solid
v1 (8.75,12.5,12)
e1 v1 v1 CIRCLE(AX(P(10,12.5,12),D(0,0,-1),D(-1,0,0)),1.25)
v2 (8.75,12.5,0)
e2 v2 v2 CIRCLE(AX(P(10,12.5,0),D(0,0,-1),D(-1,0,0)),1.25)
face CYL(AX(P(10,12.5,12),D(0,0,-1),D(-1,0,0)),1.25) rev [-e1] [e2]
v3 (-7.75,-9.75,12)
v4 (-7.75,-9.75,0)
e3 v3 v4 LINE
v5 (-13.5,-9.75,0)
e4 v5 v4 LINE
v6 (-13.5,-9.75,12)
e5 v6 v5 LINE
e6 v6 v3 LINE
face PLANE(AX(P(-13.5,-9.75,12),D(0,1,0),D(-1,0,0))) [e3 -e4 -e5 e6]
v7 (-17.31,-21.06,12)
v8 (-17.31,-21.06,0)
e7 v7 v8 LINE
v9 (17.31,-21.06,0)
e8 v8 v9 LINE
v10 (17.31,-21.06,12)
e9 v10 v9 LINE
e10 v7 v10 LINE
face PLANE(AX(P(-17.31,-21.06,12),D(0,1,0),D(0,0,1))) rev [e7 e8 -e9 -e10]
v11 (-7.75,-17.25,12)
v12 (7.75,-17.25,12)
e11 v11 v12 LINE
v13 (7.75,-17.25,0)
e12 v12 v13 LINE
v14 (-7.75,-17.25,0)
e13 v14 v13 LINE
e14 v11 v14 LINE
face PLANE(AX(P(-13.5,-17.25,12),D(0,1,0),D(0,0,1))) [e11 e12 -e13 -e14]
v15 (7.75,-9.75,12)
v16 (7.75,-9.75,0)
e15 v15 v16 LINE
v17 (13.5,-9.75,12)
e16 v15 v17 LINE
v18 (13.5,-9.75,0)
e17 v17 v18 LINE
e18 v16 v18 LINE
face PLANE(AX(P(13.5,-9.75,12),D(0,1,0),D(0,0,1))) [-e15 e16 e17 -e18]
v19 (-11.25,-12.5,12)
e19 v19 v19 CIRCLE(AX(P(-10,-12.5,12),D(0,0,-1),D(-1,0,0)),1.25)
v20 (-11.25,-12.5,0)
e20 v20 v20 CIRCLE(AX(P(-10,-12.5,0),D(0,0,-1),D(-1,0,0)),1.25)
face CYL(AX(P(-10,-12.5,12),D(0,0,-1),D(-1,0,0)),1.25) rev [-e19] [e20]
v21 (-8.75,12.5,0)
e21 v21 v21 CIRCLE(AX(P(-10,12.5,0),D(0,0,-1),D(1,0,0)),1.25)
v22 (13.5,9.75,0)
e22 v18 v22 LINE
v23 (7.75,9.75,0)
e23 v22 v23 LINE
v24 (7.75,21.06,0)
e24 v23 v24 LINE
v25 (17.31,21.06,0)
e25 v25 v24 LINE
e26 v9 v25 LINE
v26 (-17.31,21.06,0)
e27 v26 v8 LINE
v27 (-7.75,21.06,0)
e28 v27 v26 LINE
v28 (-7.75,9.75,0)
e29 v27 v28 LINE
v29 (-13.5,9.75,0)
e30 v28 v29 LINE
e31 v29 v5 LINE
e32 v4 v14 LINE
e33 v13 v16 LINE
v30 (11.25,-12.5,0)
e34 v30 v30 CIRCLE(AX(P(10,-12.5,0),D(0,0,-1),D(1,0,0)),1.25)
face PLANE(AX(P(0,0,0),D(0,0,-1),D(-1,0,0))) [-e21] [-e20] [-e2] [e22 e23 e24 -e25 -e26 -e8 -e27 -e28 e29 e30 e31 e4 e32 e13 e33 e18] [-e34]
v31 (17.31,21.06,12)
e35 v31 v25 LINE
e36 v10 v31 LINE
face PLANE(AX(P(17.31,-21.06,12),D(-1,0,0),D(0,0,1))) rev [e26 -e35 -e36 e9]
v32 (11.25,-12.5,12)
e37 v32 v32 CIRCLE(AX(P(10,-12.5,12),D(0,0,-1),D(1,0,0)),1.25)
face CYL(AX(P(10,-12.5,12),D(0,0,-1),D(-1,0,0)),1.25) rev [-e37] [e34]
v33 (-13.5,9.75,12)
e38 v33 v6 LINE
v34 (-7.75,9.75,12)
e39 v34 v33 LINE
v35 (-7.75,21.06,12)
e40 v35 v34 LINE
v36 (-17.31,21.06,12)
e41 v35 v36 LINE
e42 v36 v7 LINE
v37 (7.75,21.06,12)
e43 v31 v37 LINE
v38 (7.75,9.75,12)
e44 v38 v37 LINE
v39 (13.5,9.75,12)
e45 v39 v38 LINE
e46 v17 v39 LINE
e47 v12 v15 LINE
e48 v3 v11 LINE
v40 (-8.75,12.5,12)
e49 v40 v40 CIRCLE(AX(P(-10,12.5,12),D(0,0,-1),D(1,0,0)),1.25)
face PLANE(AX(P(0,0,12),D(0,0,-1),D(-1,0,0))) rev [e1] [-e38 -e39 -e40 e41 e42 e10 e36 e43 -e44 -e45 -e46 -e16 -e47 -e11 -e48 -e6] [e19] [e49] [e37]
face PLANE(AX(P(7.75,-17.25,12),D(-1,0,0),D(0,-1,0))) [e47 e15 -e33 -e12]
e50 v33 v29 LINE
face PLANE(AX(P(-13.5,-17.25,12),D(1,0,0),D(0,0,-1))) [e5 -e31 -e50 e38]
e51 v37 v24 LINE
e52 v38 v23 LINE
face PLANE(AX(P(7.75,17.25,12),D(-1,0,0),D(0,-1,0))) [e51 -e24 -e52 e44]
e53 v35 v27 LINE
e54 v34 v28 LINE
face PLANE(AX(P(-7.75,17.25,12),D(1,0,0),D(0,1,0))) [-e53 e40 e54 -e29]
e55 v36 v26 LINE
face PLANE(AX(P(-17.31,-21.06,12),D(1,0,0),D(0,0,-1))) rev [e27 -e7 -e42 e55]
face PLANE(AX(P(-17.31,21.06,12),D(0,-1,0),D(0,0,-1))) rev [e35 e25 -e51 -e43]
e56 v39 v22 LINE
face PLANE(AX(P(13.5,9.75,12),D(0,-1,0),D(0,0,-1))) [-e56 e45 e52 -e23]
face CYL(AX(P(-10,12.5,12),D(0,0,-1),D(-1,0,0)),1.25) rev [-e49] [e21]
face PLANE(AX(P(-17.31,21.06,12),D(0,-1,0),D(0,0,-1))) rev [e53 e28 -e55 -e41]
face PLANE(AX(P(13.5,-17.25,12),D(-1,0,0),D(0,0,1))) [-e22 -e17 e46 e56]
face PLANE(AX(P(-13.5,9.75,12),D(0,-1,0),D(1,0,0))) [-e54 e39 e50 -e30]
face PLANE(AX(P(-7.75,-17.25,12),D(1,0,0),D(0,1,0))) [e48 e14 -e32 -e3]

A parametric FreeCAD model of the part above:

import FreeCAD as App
import Part
import Sketcher
from FreeCAD import Vector


def add_polygon(sketch, points):
    """Adds a closed chain of lines whose ends are joined by coincident constraints."""
    first, n = sketch.GeometryCount, len(points)
    for a, b in zip(points, points[1:] + points[:1]):
        sketch.addGeometry(Part.LineSegment(App.Vector(*a, 0), App.Vector(*b, 0)), False)
    for i in range(n):
        sketch.addConstraint(Sketcher.Constraint("Coincident", first + i, 2, first + (i + 1) % n, 1))

doc = App.newDocument("Part")
params = doc.addObject("Spreadsheet::Sheet", "Params")
for row, (alias, value) in enumerate([
    ("sketch1_width", "27 mm"),
    ("sketch1_height", "34.5 mm"),
    ("sketch1_width2", "34.62 mm"),
    ("sketch1_height2", "42.12 mm"),
    ("pad1_length", "12 mm"),
    ("sketch2_diameter", "2.5 mm"),
    ("sketch2_height", "7.5 mm"),
    ("sketch2_width", "5.75 mm"),
    ("pad2_length", "12 mm"),
    ("sketch3_width", "15.5 mm"),
    ("sketch3_height", "3.81 mm"),
], start=1):
    params.set(f"A{row}", alias)
    params.set(f"B{row}", "=" + value)
    params.setAlias(f"B{row}", alias)

body = doc.addObject("PartDesign::Body", "Body")

# Sketch on XY plane
sketch1 = body.newObject("Sketcher::SketchObject", "Sketch")
sketch1.AttachmentSupport = (doc.getObject("XY_Plane"), [""])
sketch1.MapMode = "FlatFace"
add_polygon(sketch1, [(-17, 21), (-17, -21), (17, -21), (17, 21)])  # lines 0-3
add_polygon(sketch1, [(14, -17), (-14, -17), (-14, 17), (14, 17)])  # lines 4-7
sketch1.addConstraint(Sketcher.Constraint("Vertical", 0))
sketch1.addConstraint(Sketcher.Constraint("Horizontal", 1))
sketch1.addConstraint(Sketcher.Constraint("Vertical", 2))
sketch1.addConstraint(Sketcher.Constraint("Horizontal", 3))
sketch1.addConstraint(Sketcher.Constraint("Horizontal", 4))
sketch1.addConstraint(Sketcher.Constraint("Vertical", 5))
sketch1.addConstraint(Sketcher.Constraint("Horizontal", 6))
sketch1.addConstraint(Sketcher.Constraint("Vertical", 7))
sketch1.addConstraint(Sketcher.Constraint("Symmetric", 0, 2, 2, 2, -1, 1))
sketch1.addConstraint(Sketcher.Constraint("Symmetric", 4, 2, 6, 2, -1, 1))
sketch1.addConstraint(Sketcher.Constraint("DistanceX", 4, 2, 4, 1, 27.0))
sketch1.addConstraint(Sketcher.Constraint("DistanceY", 5, 1, 5, 2, 34.5))
sketch1.addConstraint(Sketcher.Constraint("DistanceX", 1, 1, 1, 2, 34.62))
sketch1.addConstraint(Sketcher.Constraint("DistanceY", 0, 2, 0, 1, 42.12))
sketch1.setExpression("Constraints[18]", "Params.sketch1_width")
sketch1.setExpression("Constraints[19]", "Params.sketch1_height")
sketch1.setExpression("Constraints[20]", "Params.sketch1_width2")
sketch1.setExpression("Constraints[21]", "Params.sketch1_height2")
pad1 = body.newObject("PartDesign::Pad", "Pad")
pad1.Profile = sketch1
pad1.setExpression("Length", "Params.pad1_length")

# Sketch on XY plane
sketch2 = body.newObject("Sketcher::SketchObject", "Sketch001")
sketch2.AttachmentSupport = (doc.getObject("XY_Plane"), [""])
sketch2.MapMode = "FlatFace"
add_polygon(sketch2, [(13.5, 17.2), (13.5, 9.8), (7.8, 9.8), (7.8, 17.2)])  # lines 0-3
sketch2.addGeometry(Part.Circle(Vector(10, 12.5, 0), Vector(0, 0, 1), 1.2), False)  # 4
add_polygon(sketch2, [(-7.8, 17.2), (-7.8, 9.8), (-13.5, 9.8), (-13.5, 17.2)])  # lines 5-8
sketch2.addGeometry(Part.Circle(Vector(-10, 12.5, 0), Vector(0, 0, 1), 1.2), False)  # 9
add_polygon(sketch2, [(-7.8, -9.8), (-7.8, -17.2), (-13.5, -17.2), (-13.5, -9.8)])  # lines 10-13
sketch2.addGeometry(Part.Circle(Vector(-10, -12.5, 0), Vector(0, 0, 1), 1.2), False)  # 14
add_polygon(sketch2, [(13.5, -9.8), (13.5, -17.2), (7.8, -17.2), (7.8, -9.8)])  # lines 15-18
sketch2.addGeometry(Part.Circle(Vector(10, -12.5, 0), Vector(0, 0, 1), 1.2), False)  # 19
sketch2.addConstraint(Sketcher.Constraint("Vertical", 0))
sketch2.addConstraint(Sketcher.Constraint("Horizontal", 1))
sketch2.addConstraint(Sketcher.Constraint("Vertical", 2))
sketch2.addConstraint(Sketcher.Constraint("Horizontal", 3))
sketch2.addConstraint(Sketcher.Constraint("Vertical", 5))
sketch2.addConstraint(Sketcher.Constraint("Horizontal", 6))
sketch2.addConstraint(Sketcher.Constraint("Vertical", 7))
sketch2.addConstraint(Sketcher.Constraint("Horizontal", 8))
sketch2.addConstraint(Sketcher.Constraint("Vertical", 10))
sketch2.addConstraint(Sketcher.Constraint("Horizontal", 11))
sketch2.addConstraint(Sketcher.Constraint("Vertical", 12))
sketch2.addConstraint(Sketcher.Constraint("Horizontal", 13))
sketch2.addConstraint(Sketcher.Constraint("Vertical", 15))
sketch2.addConstraint(Sketcher.Constraint("Horizontal", 16))
sketch2.addConstraint(Sketcher.Constraint("Vertical", 17))
sketch2.addConstraint(Sketcher.Constraint("Horizontal", 18))
sketch2.addConstraint(Sketcher.Constraint("Equal", 4, 9))
sketch2.addConstraint(Sketcher.Constraint("Equal", 9, 14))
sketch2.addConstraint(Sketcher.Constraint("Equal", 14, 19))
sketch2.addConstraint(Sketcher.Constraint("Symmetric", 4, 3, 14, 3, -1, 1))
sketch2.addConstraint(Sketcher.Constraint("Symmetric", 9, 3, 19, 3, -1, 1))
sketch2.addConstraint(Sketcher.Constraint("Symmetric", 2, 2, 10, 2, -1, 1))
sketch2.addConstraint(Sketcher.Constraint("Symmetric", 0, 2, 12, 2, -1, 1))
sketch2.addConstraint(Sketcher.Constraint("Symmetric", 7, 2, 15, 2, -1, 1))
sketch2.addConstraint(Sketcher.Constraint("Symmetric", 5, 2, 17, 2, -1, 1))
sketch2.addConstraint(Sketcher.Constraint("Symmetric", 4, 3, 9, 3, -2))
sketch2.addConstraint(Sketcher.Constraint("Symmetric", 1, 2, 5, 2, -2))
sketch2.addConstraint(Sketcher.Constraint("Symmetric", 3, 2, 7, 2, -2))
sketch2.addConstraint(Sketcher.Constraint("Diameter", 4, 2.5))
sketch2.addConstraint(Sketcher.Constraint("DistanceY", 0, 2, 0, 1, 7.5))
sketch2.addConstraint(Sketcher.Constraint("DistanceX", -1, 1, 4, 3, 10.0))
sketch2.addConstraint(Sketcher.Constraint("DistanceY", 14, 3, 9, 3, 25.0))
sketch2.addConstraint(Sketcher.Constraint("DistanceY", 10, 2, 5, 2, 27.0))
sketch2.addConstraint(Sketcher.Constraint("DistanceX", 1, 2, 1, 1, 5.75))
sketch2.addConstraint(Sketcher.Constraint("DistanceX", -1, 1, 0, 2, 13.5))
sketch2.setExpression("Constraints[44]", "Params.sketch2_diameter")
sketch2.setExpression("Constraints[45]", "Params.sketch2_height")
sketch2.setExpression("Constraints[49]", "Params.sketch2_width")
pad2 = body.newObject("PartDesign::Pad", "Pad001")
pad2.Profile = sketch2
pad2.setExpression("Length", "Params.pad2_length")

# Sketch on XY plane
sketch3 = body.newObject("Sketcher::SketchObject", "Sketch002")
sketch3.AttachmentSupport = (doc.getObject("XY_Plane"), [""])
sketch3.MapMode = "FlatFace"
add_polygon(sketch3, [(7.8, 21.1), (7.8, 17.2), (-7.8, 17.2), (-7.8, 21.1)])  # lines 0-3
sketch3.addConstraint(Sketcher.Constraint("Vertical", 0))
sketch3.addConstraint(Sketcher.Constraint("Horizontal", 1))
sketch3.addConstraint(Sketcher.Constraint("Vertical", 2))
sketch3.addConstraint(Sketcher.Constraint("Horizontal", 3))
sketch3.addConstraint(Sketcher.Constraint("DistanceX", 1, 2, 1, 1, 15.5))
sketch3.addConstraint(Sketcher.Constraint("DistanceY", 0, 2, 0, 1, 3.81))
sketch3.addConstraint(Sketcher.Constraint("DistanceX", -1, 1, 0, 2, 7.75))
sketch3.addConstraint(Sketcher.Constraint("DistanceY", -1, 1, 0, 2, 17.25))
sketch3.setExpression("Constraints[8]", "Params.sketch3_width")
sketch3.setExpression("Constraints[9]", "Params.sketch3_height")
pocket1 = body.newObject("PartDesign::Pocket", "Pocket")
pocket1.Profile = sketch3
pocket1.Type = "ThroughAll"
pocket1.Reversed = True

doc.recompute()
